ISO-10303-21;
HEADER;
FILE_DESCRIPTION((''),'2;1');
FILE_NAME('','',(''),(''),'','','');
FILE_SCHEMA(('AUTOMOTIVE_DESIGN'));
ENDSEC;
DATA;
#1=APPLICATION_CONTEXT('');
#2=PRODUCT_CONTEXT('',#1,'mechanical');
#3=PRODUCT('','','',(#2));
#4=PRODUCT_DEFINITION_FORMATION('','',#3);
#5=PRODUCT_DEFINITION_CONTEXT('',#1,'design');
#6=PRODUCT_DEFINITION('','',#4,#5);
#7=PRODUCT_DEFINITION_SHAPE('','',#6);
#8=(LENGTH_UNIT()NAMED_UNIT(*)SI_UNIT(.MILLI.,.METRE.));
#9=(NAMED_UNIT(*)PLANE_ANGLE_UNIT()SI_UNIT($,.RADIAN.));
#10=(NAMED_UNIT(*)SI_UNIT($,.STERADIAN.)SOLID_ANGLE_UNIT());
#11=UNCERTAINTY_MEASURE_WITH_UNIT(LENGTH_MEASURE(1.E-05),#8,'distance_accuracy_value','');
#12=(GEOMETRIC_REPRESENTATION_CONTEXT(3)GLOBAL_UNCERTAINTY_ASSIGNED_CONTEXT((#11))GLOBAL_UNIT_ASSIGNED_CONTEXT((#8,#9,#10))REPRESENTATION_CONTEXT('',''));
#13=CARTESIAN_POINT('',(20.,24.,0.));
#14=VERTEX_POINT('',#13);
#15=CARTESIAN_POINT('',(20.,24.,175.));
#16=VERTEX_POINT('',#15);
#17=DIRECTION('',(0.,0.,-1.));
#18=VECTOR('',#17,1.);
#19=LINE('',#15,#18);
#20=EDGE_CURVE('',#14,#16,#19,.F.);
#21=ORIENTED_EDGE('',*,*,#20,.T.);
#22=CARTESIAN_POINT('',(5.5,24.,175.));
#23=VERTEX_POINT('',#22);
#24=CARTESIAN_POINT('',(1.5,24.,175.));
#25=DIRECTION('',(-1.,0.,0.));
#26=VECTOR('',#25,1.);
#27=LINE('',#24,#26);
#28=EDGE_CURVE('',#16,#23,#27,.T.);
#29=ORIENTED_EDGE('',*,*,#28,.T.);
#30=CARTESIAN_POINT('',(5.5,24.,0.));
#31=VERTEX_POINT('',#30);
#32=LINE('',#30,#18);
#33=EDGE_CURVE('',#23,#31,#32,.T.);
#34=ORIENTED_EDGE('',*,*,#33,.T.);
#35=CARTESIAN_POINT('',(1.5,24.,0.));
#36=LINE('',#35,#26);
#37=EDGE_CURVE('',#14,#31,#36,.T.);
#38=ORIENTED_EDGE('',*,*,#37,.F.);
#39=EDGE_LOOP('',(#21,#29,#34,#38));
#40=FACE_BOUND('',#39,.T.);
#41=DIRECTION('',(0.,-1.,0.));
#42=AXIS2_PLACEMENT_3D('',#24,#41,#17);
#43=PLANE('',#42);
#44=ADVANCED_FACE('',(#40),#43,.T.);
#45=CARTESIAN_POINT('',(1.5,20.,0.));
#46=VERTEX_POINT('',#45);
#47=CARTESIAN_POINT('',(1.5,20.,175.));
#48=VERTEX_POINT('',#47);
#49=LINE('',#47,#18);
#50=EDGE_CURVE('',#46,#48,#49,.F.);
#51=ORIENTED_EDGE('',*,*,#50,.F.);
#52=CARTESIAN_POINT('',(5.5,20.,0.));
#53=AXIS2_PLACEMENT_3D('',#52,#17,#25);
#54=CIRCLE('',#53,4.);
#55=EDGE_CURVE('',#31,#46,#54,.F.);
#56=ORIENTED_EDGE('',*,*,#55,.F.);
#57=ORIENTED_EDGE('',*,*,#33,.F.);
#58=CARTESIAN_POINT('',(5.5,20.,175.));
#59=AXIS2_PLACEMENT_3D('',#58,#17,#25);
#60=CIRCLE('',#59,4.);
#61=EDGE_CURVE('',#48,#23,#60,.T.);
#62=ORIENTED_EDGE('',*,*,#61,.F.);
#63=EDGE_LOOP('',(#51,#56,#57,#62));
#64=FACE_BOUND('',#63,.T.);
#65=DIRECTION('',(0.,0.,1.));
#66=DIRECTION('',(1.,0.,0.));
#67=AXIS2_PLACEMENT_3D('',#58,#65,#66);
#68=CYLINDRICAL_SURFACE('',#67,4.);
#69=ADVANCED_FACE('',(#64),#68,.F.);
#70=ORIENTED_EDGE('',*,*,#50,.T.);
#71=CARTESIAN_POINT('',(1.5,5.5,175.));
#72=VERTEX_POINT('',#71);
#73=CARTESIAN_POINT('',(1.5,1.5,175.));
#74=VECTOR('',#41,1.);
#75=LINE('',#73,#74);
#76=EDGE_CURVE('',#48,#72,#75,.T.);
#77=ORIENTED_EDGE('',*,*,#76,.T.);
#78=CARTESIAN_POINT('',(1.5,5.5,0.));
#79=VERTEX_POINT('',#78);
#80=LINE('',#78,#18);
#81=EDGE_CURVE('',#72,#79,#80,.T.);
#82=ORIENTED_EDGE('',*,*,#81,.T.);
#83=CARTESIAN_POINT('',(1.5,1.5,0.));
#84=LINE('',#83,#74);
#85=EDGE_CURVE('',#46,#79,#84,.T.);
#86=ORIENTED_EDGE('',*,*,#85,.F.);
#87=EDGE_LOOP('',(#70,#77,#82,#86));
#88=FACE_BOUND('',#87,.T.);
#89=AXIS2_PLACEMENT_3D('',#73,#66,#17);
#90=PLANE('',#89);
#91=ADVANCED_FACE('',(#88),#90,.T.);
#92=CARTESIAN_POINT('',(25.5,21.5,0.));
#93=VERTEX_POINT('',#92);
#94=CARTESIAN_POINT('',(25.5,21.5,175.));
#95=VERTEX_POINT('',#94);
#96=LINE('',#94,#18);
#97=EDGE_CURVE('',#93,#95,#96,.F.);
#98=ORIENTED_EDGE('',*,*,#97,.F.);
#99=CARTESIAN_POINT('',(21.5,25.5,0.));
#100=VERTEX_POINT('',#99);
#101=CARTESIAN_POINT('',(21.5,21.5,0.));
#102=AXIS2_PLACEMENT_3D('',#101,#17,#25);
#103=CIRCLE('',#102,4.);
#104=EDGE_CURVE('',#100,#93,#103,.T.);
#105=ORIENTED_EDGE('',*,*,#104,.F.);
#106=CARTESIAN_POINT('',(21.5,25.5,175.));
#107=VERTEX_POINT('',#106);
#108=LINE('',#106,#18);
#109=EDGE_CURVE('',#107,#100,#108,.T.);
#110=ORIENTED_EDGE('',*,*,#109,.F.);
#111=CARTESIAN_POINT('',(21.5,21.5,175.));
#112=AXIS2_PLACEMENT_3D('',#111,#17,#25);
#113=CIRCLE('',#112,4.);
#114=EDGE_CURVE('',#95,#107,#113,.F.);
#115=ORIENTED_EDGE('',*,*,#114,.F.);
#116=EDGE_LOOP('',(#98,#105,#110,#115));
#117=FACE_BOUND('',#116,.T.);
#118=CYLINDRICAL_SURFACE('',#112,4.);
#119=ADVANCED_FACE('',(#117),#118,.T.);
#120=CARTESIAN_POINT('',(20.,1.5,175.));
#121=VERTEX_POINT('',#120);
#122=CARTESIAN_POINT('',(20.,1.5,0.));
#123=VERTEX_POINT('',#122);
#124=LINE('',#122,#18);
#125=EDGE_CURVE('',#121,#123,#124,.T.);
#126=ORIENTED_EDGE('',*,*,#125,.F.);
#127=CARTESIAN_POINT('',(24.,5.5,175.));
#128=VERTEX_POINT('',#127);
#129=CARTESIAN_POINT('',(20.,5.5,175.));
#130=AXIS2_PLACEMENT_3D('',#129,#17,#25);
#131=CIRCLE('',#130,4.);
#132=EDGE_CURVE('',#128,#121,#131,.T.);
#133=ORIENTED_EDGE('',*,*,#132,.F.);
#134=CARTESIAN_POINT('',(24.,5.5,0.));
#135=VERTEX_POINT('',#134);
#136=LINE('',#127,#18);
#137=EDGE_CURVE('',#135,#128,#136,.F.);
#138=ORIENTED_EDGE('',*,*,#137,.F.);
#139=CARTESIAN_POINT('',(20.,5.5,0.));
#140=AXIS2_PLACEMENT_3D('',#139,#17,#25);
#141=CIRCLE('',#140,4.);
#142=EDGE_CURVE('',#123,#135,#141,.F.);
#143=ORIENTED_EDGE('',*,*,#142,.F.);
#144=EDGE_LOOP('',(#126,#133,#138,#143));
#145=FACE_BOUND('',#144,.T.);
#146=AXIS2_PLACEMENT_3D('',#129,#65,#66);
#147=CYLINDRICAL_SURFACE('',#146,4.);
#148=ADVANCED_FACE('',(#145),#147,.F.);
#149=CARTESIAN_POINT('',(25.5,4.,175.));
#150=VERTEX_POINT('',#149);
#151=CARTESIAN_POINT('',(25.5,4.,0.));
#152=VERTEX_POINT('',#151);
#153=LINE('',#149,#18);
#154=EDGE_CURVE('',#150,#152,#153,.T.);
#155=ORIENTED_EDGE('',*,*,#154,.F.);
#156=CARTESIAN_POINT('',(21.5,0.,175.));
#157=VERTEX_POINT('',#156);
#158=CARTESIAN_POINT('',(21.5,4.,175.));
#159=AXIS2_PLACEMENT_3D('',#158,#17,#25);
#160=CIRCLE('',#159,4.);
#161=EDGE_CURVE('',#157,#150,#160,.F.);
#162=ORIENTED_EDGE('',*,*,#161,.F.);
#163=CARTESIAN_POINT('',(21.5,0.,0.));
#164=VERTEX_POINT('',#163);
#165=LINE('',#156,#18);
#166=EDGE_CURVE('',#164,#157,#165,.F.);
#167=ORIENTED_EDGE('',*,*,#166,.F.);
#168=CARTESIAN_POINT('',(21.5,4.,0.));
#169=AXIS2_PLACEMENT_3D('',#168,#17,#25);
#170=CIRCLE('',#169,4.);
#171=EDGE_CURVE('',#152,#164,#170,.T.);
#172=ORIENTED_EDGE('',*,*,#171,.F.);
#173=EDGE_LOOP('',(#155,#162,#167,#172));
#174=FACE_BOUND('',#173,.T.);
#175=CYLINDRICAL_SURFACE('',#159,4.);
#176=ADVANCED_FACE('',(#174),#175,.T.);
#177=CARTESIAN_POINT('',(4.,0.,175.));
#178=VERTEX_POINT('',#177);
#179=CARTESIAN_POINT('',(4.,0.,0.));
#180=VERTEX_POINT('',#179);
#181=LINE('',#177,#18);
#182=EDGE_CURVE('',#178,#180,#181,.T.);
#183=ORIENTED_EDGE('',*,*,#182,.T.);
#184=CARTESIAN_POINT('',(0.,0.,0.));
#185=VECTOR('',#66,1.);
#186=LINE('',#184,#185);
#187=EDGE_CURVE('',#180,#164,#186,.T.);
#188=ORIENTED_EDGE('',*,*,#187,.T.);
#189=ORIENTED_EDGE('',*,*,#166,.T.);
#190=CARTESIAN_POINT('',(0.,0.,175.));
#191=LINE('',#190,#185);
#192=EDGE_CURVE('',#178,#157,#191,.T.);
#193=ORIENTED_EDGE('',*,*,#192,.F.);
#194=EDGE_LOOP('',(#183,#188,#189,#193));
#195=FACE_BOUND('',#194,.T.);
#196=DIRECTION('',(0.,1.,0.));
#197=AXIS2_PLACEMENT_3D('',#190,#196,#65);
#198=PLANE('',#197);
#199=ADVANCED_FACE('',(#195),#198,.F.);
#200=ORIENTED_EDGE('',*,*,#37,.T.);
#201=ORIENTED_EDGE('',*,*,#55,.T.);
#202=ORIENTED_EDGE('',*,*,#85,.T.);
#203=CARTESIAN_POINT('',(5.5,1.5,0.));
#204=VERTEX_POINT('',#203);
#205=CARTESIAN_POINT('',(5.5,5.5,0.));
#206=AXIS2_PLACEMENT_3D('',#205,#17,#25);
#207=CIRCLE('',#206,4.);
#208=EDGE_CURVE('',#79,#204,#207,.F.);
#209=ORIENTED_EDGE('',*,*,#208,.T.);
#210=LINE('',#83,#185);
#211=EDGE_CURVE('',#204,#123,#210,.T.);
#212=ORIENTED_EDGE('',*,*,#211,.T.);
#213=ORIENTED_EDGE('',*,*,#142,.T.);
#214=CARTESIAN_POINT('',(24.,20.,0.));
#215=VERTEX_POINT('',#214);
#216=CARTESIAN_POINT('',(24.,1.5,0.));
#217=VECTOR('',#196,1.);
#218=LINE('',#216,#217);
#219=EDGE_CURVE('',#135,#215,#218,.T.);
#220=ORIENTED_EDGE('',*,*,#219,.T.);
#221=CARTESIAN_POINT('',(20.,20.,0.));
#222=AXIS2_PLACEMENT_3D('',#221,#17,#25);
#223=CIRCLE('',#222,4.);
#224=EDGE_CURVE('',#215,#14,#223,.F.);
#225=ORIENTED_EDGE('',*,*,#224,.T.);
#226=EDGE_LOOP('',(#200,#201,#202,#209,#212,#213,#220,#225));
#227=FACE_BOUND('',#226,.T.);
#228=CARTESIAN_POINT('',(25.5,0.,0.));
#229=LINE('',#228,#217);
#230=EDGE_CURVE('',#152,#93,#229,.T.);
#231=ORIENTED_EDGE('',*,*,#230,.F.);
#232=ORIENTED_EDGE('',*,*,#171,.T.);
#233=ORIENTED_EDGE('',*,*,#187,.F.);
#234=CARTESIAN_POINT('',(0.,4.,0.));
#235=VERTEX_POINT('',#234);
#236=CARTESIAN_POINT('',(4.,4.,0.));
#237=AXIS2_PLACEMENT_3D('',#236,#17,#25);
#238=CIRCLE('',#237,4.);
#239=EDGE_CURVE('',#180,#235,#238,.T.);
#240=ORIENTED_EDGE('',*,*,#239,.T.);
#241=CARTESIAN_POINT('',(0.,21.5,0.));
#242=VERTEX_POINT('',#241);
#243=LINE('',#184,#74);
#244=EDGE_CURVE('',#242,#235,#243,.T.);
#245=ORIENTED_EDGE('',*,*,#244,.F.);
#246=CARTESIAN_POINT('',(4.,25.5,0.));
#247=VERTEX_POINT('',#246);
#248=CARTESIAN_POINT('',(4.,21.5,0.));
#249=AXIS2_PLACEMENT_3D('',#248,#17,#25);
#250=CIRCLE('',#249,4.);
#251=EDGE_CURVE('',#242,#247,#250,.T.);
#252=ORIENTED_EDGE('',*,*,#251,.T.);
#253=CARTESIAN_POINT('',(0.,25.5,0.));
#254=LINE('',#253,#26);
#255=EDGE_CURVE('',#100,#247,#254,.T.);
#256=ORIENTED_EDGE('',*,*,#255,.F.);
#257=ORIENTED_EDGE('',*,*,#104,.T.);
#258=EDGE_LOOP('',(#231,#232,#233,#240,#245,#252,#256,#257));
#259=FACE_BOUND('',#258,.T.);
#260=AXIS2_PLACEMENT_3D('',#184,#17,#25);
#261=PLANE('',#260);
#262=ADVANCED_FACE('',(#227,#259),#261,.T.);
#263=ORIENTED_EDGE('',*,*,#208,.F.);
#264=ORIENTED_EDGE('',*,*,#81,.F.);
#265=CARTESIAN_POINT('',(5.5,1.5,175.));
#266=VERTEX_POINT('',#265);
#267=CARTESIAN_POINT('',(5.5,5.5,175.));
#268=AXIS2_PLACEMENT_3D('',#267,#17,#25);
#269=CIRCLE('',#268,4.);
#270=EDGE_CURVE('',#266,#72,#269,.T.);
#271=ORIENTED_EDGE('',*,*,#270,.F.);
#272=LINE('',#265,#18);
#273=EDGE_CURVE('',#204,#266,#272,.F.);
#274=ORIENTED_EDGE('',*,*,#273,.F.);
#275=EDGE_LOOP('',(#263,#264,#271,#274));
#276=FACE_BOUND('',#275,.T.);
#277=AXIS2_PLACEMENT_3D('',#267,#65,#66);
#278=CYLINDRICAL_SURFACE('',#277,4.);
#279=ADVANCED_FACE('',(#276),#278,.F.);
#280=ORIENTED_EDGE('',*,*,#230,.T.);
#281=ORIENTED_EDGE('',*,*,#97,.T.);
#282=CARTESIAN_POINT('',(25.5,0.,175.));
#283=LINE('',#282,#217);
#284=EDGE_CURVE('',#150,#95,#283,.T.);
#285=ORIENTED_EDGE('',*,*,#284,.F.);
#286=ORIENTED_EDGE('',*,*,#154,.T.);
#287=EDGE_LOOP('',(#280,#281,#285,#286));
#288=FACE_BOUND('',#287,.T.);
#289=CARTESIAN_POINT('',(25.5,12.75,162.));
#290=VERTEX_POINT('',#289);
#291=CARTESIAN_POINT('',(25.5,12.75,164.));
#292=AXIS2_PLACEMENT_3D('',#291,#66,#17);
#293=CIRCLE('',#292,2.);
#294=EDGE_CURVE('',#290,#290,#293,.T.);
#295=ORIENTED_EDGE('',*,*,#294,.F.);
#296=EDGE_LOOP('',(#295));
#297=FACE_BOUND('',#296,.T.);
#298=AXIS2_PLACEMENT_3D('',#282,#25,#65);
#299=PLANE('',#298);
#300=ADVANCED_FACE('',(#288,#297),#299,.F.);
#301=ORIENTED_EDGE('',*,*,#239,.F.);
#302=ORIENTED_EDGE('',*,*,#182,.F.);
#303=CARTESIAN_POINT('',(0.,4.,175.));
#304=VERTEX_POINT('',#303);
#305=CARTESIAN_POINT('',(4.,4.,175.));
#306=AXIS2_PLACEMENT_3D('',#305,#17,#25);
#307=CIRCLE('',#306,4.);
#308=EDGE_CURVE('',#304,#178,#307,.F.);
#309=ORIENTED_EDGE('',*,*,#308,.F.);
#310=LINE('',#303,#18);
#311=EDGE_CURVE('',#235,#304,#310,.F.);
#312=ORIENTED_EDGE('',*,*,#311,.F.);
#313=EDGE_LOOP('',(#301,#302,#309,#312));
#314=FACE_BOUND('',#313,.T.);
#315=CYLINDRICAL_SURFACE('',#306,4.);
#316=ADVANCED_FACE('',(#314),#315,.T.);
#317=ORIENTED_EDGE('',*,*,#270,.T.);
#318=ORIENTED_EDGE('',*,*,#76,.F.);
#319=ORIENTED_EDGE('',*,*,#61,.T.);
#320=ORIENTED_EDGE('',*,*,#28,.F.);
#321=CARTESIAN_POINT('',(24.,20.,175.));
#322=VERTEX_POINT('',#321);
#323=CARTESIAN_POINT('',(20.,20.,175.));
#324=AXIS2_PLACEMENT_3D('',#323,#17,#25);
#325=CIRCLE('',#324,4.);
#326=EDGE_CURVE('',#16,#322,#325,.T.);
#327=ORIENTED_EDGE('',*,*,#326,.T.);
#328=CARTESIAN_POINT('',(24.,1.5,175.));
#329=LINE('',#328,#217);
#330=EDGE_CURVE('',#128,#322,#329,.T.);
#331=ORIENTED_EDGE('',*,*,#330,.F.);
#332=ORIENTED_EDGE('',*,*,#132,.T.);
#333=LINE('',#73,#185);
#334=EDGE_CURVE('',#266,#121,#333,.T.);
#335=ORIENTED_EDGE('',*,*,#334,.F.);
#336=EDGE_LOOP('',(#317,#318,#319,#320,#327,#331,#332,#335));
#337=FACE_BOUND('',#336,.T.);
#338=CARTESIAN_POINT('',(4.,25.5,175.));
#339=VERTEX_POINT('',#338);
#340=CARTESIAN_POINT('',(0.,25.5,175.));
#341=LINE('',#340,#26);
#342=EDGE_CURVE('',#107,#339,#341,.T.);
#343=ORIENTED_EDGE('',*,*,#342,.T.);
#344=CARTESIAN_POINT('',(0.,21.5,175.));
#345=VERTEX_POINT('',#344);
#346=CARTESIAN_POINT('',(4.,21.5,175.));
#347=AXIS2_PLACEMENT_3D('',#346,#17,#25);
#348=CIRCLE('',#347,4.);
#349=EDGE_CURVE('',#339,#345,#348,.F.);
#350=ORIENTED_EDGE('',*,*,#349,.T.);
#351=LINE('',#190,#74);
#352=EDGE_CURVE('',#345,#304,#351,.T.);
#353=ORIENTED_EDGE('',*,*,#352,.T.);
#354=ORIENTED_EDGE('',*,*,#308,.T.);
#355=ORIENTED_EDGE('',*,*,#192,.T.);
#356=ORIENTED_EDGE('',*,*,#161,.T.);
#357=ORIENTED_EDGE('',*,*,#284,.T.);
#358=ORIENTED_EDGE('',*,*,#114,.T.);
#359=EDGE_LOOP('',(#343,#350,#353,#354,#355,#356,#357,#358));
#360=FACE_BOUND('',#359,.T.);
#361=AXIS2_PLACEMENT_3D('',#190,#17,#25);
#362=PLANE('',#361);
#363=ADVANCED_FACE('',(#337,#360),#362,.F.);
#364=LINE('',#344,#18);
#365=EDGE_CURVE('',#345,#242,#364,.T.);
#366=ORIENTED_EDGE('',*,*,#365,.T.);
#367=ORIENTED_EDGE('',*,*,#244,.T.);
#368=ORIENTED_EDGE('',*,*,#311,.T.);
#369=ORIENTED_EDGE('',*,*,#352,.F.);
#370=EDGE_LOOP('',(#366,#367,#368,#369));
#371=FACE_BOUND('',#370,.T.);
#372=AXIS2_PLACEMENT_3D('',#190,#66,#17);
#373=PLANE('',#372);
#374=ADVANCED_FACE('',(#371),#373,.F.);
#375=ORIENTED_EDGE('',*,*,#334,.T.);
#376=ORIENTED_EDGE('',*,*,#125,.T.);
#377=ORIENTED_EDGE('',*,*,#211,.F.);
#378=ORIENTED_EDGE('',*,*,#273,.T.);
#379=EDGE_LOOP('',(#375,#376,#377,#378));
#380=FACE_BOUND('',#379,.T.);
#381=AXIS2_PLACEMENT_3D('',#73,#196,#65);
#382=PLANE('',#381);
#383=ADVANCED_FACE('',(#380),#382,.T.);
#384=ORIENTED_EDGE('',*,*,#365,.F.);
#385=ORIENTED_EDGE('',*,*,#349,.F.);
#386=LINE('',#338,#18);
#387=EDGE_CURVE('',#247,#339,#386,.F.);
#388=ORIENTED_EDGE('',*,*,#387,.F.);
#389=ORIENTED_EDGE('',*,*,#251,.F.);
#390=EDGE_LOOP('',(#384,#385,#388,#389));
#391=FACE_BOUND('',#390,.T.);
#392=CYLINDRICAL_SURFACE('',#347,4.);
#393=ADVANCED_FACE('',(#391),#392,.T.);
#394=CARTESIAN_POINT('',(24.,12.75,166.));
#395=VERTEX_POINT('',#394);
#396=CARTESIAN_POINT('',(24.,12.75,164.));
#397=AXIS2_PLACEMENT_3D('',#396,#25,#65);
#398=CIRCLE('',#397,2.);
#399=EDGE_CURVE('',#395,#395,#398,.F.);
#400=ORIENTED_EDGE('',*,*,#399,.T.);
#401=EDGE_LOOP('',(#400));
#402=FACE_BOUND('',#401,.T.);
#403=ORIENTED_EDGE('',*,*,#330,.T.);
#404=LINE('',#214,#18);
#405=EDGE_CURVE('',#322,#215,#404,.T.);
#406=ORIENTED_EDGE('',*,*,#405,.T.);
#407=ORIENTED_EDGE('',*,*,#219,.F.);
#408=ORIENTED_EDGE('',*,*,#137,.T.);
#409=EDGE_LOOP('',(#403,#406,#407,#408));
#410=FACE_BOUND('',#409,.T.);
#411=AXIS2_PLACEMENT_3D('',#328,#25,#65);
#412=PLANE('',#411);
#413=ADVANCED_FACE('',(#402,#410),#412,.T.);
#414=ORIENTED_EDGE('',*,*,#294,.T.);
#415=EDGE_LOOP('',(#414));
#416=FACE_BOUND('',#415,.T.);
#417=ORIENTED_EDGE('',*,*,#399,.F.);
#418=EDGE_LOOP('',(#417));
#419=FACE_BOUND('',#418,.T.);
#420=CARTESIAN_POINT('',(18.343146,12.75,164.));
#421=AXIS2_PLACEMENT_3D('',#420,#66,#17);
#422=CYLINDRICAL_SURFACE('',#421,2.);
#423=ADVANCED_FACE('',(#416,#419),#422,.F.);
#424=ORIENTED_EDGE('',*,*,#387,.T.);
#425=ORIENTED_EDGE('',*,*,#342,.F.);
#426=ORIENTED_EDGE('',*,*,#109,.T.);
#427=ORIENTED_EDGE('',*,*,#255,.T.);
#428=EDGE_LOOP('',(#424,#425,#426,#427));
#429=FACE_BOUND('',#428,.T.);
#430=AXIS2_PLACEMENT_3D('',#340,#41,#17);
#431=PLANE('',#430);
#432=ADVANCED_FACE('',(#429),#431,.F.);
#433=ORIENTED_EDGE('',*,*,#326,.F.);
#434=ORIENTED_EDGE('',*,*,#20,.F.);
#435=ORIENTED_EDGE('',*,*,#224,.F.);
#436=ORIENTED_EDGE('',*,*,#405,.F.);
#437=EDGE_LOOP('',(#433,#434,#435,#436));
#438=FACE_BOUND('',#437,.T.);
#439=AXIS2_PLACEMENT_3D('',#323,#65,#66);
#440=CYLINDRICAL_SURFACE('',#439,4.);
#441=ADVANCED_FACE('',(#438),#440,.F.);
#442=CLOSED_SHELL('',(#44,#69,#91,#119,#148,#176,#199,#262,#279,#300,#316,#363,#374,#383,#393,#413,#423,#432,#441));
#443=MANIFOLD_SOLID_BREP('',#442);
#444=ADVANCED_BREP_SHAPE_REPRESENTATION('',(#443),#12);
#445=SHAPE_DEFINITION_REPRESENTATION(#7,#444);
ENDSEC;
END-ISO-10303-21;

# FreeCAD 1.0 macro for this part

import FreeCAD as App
import Part
import Sketcher
from FreeCAD import Vector
Q = App.Units.Quantity


def edges_at(feature, points):
    """Names of the edges that pass closest to the given points."""
    edges = feature.Shape.Edges
    near = lambda p: min(range(len(edges)), key=lambda i: edges[i].distToShape(Part.Vertex(*p))[0])
    return sorted({f"Edge{near(p) + 1}" for p in points})


def add_polygon(sketch, points):
    """Adds a closed chain of lines whose ends are joined by coincident constraints."""
    first, n = sketch.GeometryCount, len(points)
    for a, b in zip(points, points[1:] + points[:1]):
        sketch.addGeometry(Part.LineSegment(App.Vector(*a, 0), App.Vector(*b, 0)), False)
    for i in range(n):
        sketch.addConstraint(Sketcher.Constraint("Coincident", first + i, 2, first + (i + 1) % n, 1))

doc = App.newDocument("Part")
params = doc.addObject("Spreadsheet::Sheet", "Params")
for row, (alias, value) in enumerate([
    ("sketch1_width", "25.5 mm"),
    ("sketch1_width2", "22.5 mm"),
    ("pad1_length", "175 mm"),
    ("sketch2_diameter", "4 mm"),
    ("pocket1_length", "1.5 mm"),
    ("fillet_radius", "4 mm"),
], start=1):
    params.set(f"A{row}", alias)
    params.set(f"B{row}", "=" + value)
    params.setAlias(f"B{row}", alias)

body = doc.addObject("PartDesign::Body", "Body")

sketch1 = doc.addObject("Sketcher::SketchObject", "Sketch")
body.addObject(sketch1)
sketch1.AttachmentSupport = (doc.XY_Plane, [""])
sketch1.MapMode = "FlatFace"
add_polygon(sketch1, [(0, 26), (0, 0), (26, 0), (26, 26)])
add_polygon(sketch1, [(24, 2), (2, 2), (2, 24), (24, 24)])
sketch1.addConstraint([
    Sketcher.Constraint("Vertical", 0),
    Sketcher.Constraint("Horizontal", 1),
    Sketcher.Constraint("Vertical", 2),
    Sketcher.Constraint("Horizontal", 3),
    Sketcher.Constraint("Horizontal", 4),
    Sketcher.Constraint("Vertical", 5),
    Sketcher.Constraint("Horizontal", 6),
    Sketcher.Constraint("Vertical", 7),
    Sketcher.Constraint("Coincident", 0, 2, -1, 1),
    Sketcher.Constraint("Equal", 3, 0),
    Sketcher.Constraint("Equal", 6, 5),
    Sketcher.Constraint("DistanceX", 1, 1, 1, 2, Q("25.5 mm")),
    Sketcher.Constraint("DistanceX", 4, 2, 4, 1, Q("22.5 mm")),
    Sketcher.Constraint("DistanceY", -1, 1, 5, 2, Q("24 mm")),
    Sketcher.Constraint("DistanceX", -1, 1, 6, 2, Q("24 mm")),
])
sketch1.setExpression("Constraints[19]", "Params.sketch1_width")
sketch1.setExpression("Constraints[20]", "Params.sketch1_width2")
pad1 = doc.addObject("PartDesign::Pad", "Pad")
body.addObject(pad1)
pad1.Profile = sketch1
pad1.setExpression("Length", "Params.pad1_length")

sketch2 = doc.addObject("Sketcher::SketchObject", "Sketch001")
body.addObject(sketch2)
sketch2.AttachmentSupport = (doc.YZ_Plane, [""])
sketch2.MapMode = "FlatFace"
sketch2.AttachmentOffset = App.Placement(Vector(0, 0, 25.5), App.Rotation())
sketch2.addGeometry(Part.Circle(Vector(12.8, 164, 0), Vector(0, 0, 1), 2), False)
sketch2.addConstraint([
    Sketcher.Constraint("Diameter", 0, Q("4 mm")),
    Sketcher.Constraint("DistanceY", -1, 1, 0, 3, Q("164 mm")),
    Sketcher.Constraint("DistanceX", -1, 1, 0, 3, Q("12.75 mm")),
])
sketch2.setExpression("Constraints[0]", "Params.sketch2_diameter")
pocket1 = doc.addObject("PartDesign::Pocket", "Pocket")
body.addObject(pocket1)
pocket1.Profile = sketch2
pocket1.setExpression("Length", "Params.pocket1_length")
doc.recompute()

fillet = doc.addObject("PartDesign::Fillet", "Fillet")
body.addObject(fillet)
fillet.Base = (pocket1, edges_at(pocket1, [
    (1.5, 1.5, 87.5),
    (24, 1.5, 87.5),
    (24, 24, 87.5),
    (1.5, 24, 87.5),
    (0, 25.5, 87.5),
    (25.5, 25.5, 87.5),
    (25.5, 0, 87.5),
    (0, 0, 87.5),
]))
fillet.setExpression("Radius", "Params.fillet_radius")

doc.recompute()
